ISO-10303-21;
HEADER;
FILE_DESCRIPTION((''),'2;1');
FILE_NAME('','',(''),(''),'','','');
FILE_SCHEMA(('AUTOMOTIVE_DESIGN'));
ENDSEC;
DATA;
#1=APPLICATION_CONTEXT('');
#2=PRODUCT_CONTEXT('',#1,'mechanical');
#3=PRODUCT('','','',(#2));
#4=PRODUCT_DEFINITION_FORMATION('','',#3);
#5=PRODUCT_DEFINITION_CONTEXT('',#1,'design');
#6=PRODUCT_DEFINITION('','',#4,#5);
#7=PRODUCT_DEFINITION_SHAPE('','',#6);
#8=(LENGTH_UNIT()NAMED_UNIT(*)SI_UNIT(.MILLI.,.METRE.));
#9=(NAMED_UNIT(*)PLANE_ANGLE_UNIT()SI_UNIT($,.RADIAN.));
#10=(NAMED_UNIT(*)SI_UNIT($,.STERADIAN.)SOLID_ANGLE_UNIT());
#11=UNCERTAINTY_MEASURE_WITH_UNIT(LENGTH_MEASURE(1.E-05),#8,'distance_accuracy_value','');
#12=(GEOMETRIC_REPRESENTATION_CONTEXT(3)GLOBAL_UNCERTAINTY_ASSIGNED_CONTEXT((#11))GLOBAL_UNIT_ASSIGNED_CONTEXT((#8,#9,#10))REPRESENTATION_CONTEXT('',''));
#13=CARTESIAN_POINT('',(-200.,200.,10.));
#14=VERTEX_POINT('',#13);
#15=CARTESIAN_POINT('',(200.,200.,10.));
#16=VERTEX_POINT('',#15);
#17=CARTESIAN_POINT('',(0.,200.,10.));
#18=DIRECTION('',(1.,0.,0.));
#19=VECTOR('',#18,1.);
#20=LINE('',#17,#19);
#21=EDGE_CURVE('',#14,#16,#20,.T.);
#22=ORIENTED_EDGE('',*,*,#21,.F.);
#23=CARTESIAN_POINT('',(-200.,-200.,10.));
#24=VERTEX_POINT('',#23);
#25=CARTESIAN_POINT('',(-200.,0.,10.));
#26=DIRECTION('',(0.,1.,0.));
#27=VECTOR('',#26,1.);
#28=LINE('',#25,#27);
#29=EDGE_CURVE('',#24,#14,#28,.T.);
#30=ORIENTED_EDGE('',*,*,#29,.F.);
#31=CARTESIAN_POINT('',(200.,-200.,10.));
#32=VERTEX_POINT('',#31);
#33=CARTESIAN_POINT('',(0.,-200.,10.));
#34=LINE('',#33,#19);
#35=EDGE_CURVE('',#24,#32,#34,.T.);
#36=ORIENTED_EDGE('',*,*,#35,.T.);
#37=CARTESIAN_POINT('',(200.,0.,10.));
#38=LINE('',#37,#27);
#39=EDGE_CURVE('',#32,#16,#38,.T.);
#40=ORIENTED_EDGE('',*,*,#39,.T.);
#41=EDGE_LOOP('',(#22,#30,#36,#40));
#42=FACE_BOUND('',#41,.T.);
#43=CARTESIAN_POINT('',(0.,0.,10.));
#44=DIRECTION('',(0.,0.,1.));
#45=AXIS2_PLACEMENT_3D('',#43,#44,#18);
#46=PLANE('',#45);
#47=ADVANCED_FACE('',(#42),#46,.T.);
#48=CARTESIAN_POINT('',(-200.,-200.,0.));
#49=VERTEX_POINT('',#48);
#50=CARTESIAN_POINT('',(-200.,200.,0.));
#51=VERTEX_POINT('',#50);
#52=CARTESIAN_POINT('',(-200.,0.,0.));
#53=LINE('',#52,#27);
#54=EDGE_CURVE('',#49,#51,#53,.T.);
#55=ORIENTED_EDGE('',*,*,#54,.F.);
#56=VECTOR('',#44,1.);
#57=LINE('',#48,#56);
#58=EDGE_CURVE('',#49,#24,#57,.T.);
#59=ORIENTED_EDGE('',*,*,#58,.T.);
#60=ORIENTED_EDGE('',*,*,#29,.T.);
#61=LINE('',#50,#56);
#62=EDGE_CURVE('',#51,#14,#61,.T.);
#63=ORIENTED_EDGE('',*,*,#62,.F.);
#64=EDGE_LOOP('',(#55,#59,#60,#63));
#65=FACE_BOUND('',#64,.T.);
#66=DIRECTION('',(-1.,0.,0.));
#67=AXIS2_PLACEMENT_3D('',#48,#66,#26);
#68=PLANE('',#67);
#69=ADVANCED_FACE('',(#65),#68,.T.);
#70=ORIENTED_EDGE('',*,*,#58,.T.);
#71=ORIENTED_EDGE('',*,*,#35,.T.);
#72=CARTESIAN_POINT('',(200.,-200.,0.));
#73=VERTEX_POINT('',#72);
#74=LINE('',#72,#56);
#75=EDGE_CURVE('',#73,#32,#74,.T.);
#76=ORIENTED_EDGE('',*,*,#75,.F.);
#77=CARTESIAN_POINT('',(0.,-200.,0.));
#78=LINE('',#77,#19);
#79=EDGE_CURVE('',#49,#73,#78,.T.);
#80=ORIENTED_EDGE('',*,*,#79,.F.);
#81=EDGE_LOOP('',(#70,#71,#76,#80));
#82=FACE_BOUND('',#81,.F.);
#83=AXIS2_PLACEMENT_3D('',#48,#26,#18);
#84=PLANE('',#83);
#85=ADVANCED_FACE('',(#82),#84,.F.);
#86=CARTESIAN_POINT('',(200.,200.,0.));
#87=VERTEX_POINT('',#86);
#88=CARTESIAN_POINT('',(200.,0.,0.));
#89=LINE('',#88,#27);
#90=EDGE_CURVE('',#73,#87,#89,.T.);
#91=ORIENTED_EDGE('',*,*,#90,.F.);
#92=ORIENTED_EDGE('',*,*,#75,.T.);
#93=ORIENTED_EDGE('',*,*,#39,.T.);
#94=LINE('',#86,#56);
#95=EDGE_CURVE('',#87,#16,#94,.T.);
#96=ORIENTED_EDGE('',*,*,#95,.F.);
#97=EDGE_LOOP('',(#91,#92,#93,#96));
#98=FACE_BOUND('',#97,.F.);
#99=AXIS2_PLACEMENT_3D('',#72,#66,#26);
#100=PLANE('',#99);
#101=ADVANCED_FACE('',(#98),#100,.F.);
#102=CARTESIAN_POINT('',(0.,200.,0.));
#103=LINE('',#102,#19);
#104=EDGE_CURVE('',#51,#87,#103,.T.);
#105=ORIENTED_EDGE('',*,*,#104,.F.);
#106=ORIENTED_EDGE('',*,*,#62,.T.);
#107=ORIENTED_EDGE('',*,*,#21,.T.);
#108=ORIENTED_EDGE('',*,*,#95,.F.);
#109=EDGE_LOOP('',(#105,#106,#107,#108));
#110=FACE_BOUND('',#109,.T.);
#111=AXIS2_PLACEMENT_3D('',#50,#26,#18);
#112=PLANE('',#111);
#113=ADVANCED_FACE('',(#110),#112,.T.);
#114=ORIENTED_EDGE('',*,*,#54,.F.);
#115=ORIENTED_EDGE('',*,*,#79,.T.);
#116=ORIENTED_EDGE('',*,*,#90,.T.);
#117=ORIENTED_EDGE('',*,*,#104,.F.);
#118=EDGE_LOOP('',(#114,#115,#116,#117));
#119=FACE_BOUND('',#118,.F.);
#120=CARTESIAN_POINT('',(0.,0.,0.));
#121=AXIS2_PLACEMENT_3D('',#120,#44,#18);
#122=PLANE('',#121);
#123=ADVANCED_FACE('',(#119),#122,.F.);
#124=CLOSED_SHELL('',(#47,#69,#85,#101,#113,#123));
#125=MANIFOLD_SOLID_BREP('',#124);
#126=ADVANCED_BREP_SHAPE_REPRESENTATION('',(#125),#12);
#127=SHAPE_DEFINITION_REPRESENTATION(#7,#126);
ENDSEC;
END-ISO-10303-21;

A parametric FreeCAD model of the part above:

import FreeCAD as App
import Part
import Sketcher
Q = App.Units.Quantity

doc = App.newDocument("Part")
body = doc.addObject("PartDesign::Body", "Body")

# Sketch on XY plane
sketch1 = doc.addObject("Sketcher::SketchObject", "Sketch")
body.addObject(sketch1)
sketch1.AttachmentSupport = (doc.XY_Plane, [""])
sketch1.MapMode = "FlatFace"
sketch1.addGeometry(Part.LineSegment(App.Vector(-200, 200, 0), App.Vector(-200, -200, 0)), False)
sketch1.addGeometry(Part.LineSegment(App.Vector(-200, -200, 0), App.Vector(200, -200, 0)), False)
sketch1.addGeometry(Part.LineSegment(App.Vector(200, -200, 0), App.Vector(200, 200, 0)), False)
sketch1.addGeometry(Part.LineSegment(App.Vector(200, 200, 0), App.Vector(-200, 200, 0)), False)
sketch1.addConstraint(Sketcher.Constraint("Coincident", 0, 2, 1, 1))
sketch1.addConstraint(Sketcher.Constraint("Coincident", 1, 2, 2, 1))
sketch1.addConstraint(Sketcher.Constraint("Coincident", 2, 2, 3, 1))
sketch1.addConstraint(Sketcher.Constraint("Coincident", 3, 2, 0, 1))
sketch1.addConstraint(Sketcher.Constraint("Vertical", 0))
sketch1.addConstraint(Sketcher.Constraint("Horizontal", 1))
sketch1.addConstraint(Sketcher.Constraint("Vertical", 2))
sketch1.addConstraint(Sketcher.Constraint("Horizontal", 3))
sketch1.addConstraint(Sketcher.Constraint("Symmetric", 0, 2, 2, 2, -1, 1))
sketch1.addConstraint(Sketcher.Constraint("Equal", 3, 0))
sketch1.addConstraint(Sketcher.Constraint("DistanceX", 1, 1, 1, 2, Q("400 mm")))
pad1 = doc.addObject("PartDesign::Pad", "Pad")
body.addObject(pad1)
pad1.Profile = sketch1
pad1.Length = 10

doc.recompute()
